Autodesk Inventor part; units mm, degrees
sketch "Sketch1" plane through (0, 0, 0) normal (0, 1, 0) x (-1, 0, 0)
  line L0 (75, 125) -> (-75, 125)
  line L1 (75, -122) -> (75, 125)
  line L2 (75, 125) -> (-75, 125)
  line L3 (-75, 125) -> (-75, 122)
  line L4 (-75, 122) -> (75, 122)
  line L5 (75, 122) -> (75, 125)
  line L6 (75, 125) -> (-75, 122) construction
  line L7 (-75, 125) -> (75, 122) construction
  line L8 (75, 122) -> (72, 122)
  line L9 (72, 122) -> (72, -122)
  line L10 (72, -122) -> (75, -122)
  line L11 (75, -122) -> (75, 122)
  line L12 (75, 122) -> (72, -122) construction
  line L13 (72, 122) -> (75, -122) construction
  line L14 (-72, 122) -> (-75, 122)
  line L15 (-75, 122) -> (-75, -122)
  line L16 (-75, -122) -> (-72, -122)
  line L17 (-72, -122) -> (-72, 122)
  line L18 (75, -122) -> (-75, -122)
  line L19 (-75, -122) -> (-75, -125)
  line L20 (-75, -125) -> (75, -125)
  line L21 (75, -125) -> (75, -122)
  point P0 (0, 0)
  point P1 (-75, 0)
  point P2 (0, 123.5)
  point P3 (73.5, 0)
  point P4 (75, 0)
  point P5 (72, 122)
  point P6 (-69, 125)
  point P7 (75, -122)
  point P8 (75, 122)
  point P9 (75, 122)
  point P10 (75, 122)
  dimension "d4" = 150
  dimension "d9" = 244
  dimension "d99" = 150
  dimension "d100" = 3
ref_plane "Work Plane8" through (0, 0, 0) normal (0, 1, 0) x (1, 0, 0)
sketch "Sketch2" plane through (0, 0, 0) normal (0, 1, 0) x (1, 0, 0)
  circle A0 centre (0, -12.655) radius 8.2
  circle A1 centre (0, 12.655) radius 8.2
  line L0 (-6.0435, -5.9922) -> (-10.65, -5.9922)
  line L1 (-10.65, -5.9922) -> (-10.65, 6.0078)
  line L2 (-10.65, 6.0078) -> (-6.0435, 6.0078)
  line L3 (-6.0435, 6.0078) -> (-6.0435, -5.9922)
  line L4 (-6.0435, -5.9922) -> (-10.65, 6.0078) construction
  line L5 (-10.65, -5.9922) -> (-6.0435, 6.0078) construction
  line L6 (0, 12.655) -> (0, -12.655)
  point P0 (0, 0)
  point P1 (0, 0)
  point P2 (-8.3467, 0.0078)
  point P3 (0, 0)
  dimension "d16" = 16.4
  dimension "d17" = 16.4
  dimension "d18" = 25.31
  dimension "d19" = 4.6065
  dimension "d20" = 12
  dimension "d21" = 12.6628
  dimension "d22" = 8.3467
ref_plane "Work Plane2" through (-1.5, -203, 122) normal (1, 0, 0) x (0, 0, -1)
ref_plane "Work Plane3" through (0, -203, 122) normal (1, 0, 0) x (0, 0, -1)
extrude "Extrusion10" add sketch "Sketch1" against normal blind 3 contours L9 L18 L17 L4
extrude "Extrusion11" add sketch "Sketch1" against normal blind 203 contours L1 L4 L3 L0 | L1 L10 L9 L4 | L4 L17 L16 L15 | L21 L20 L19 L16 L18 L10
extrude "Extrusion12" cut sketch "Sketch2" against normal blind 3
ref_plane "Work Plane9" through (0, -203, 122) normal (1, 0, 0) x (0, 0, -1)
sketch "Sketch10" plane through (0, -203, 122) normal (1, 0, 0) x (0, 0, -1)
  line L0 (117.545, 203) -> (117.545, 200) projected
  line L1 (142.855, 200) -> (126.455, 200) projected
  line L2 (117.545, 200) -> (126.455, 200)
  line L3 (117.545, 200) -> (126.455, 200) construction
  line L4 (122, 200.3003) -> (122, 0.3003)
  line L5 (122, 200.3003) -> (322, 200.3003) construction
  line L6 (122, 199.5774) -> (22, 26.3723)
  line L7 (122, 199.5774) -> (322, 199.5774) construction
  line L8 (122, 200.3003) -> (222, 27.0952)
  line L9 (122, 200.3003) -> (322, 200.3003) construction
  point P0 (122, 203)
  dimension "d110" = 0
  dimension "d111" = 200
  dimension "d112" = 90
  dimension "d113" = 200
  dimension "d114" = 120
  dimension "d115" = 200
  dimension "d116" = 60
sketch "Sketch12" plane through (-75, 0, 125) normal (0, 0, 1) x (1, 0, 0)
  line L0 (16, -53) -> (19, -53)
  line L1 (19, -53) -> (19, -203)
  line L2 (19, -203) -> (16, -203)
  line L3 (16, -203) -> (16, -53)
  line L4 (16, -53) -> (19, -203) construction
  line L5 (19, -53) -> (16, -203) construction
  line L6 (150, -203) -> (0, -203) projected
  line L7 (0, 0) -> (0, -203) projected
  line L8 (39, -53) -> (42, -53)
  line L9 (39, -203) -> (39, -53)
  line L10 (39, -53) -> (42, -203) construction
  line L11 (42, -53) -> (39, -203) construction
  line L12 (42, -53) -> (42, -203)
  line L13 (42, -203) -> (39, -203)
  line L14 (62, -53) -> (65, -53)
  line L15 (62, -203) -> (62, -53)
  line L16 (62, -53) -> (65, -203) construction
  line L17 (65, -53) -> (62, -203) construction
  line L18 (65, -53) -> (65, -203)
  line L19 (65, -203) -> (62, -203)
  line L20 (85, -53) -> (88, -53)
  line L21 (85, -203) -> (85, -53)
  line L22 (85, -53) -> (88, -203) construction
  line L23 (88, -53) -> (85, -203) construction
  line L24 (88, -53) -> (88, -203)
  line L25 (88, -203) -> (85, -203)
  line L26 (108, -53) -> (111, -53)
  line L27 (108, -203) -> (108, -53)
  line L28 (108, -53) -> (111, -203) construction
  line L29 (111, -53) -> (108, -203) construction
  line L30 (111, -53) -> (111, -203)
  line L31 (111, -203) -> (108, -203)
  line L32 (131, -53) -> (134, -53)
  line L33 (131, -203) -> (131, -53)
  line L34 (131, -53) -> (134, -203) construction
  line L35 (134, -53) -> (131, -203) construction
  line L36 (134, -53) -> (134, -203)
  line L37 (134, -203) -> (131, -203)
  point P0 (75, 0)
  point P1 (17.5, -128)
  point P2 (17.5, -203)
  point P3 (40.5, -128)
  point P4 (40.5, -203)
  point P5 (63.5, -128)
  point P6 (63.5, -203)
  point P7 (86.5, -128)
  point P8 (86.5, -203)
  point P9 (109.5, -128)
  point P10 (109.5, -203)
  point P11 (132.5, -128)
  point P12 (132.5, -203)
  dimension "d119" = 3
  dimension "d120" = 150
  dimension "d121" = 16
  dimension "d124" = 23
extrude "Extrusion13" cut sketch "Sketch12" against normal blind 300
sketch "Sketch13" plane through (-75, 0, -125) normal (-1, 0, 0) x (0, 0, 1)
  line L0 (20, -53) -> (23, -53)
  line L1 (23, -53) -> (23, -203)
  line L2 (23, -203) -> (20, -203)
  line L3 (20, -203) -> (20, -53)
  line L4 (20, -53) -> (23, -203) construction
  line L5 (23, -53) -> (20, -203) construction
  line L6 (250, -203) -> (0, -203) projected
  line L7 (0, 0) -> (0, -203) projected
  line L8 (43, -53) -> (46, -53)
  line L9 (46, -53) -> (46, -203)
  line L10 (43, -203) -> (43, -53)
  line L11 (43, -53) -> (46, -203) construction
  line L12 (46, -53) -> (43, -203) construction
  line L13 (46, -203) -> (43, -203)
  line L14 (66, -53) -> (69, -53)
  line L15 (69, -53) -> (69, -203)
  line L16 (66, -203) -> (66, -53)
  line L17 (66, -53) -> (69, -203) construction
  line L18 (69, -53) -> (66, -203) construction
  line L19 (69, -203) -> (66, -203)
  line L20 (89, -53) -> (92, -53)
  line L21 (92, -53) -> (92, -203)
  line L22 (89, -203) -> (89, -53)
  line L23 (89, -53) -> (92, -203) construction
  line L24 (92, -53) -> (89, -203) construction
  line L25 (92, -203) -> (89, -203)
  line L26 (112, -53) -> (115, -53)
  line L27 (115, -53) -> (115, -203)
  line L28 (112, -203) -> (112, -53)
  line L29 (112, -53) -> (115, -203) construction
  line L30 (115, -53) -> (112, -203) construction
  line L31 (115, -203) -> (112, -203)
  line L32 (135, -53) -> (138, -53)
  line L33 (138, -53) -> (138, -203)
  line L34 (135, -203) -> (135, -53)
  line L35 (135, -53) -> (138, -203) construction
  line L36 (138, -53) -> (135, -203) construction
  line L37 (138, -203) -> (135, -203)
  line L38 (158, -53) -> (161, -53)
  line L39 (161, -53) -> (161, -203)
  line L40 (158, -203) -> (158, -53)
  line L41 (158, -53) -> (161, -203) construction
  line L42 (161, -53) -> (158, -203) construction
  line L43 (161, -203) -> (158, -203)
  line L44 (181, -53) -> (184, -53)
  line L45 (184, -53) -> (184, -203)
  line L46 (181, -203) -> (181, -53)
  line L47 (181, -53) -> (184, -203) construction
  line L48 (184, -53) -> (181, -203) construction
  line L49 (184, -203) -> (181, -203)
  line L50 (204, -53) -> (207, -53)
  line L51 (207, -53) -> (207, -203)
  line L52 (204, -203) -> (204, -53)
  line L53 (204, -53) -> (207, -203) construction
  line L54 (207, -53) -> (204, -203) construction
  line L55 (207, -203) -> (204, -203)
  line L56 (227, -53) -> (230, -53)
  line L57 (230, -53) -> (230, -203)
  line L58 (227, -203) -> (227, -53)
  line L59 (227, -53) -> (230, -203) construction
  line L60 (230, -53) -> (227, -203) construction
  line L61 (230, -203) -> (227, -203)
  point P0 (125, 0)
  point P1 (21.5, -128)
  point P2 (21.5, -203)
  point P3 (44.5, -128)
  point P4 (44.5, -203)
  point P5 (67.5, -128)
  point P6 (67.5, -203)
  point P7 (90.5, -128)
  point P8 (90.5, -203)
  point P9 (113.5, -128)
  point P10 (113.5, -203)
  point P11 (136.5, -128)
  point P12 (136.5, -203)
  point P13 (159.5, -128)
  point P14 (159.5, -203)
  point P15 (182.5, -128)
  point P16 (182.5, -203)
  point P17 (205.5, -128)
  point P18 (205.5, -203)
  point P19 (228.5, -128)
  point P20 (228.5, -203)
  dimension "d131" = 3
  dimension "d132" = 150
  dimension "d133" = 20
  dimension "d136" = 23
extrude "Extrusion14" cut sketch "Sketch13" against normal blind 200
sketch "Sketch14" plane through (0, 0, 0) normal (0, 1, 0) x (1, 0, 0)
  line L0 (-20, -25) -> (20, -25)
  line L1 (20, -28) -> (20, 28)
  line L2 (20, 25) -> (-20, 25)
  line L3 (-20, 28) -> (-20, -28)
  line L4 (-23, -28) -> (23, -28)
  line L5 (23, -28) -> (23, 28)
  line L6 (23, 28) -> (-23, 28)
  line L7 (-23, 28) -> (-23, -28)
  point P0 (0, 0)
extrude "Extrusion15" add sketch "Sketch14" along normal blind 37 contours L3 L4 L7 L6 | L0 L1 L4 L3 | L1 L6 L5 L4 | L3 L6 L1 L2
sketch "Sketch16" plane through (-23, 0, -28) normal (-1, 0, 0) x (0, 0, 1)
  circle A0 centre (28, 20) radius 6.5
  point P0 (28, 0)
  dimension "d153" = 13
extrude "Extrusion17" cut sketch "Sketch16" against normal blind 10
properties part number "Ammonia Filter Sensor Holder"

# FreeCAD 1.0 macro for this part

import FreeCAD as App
import Part
import Sketcher
from FreeCAD import Vector
Q = App.Units.Quantity

doc = App.newDocument("Part")
params = doc.addObject("Spreadsheet::Sheet", "Params")
for row, (alias, value) in enumerate([
    ("sketch1_height", "244 mm"),
    ("sketch1_width", "144 mm"),
    ("pad1_length", "3 mm"),
    ("sketch2_width", "150 mm"),
    ("sketch2_height", "244 mm"),
    ("pad2_length", "203 mm"),
    ("sketch3_diameter", "16.4 mm"),
    ("sketch3_height", "12 mm"),
    ("pocket1_length", "3 mm"),
    ("sketch4_width", "3 mm"),
    ("sketch4_height", "150 mm"),
    ("pocket2_length", "300 mm"),
    ("sketch5_width", "150 mm"),
    ("sketch5_height", "3 mm"),
    ("pocket3_length", "200 mm"),
    ("sketch6_width", "46 mm"),
    ("sketch6_width2", "40 mm"),
    ("sketch6_height", "56 mm"),
    ("sketch6_height2", "50 mm"),
    ("pad3_length", "37 mm"),
    ("sketch7_diameter", "13 mm"),
    ("pocket4_length", "10 mm"),
], start=1):
    params.set(f"A{row}", alias)
    params.set(f"B{row}", "=" + value)
    params.setAlias(f"B{row}", alias)

body = doc.addObject("PartDesign::Body", "Body")

sketch1 = body.newObject("Sketcher::SketchObject", "Sketch")
sketch1.AttachmentSupport = (doc.getObject("XZ_Plane"), [""])
sketch1.MapMode = "FlatFace"
sketch1.addGeometry(Part.LineSegment(Vector(-72, -122, 0), Vector(-72, 122, 0)), False)
sketch1.addGeometry(Part.LineSegment(Vector(-72, 122, 0), Vector(72, 122, 0)), False)
sketch1.addGeometry(Part.LineSegment(Vector(72, 122, 0), Vector(72, -122, 0)), False)
sketch1.addGeometry(Part.LineSegment(Vector(72, -122, 0), Vector(-72, -122, 0)), False)
sketch1.addConstraint(Sketcher.Constraint("Coincident", 0, 2, 1, 1))
sketch1.addConstraint(Sketcher.Constraint("Coincident", 1, 2, 2, 1))
sketch1.addConstraint(Sketcher.Constraint("Coincident", 2, 2, 3, 1))
sketch1.addConstraint(Sketcher.Constraint("Coincident", 3, 2, 0, 1))
sketch1.addConstraint(Sketcher.Constraint("Vertical", 0))
sketch1.addConstraint(Sketcher.Constraint("Horizontal", 1))
sketch1.addConstraint(Sketcher.Constraint("Vertical", 2))
sketch1.addConstraint(Sketcher.Constraint("Horizontal", 3))
sketch1.addConstraint(Sketcher.Constraint("Symmetric", 0, 2, 2, 2, -1, 1))
sketch1.addConstraint(Sketcher.Constraint("DistanceY", 0, 1, 0, 2, Q("244 mm")))
sketch1.addConstraint(Sketcher.Constraint("DistanceX", 1, 1, 1, 2, Q("144 mm")))
sketch1.setExpression("Constraints[9]", "Params.sketch1_height")
sketch1.setExpression("Constraints[10]", "Params.sketch1_width")
pad1 = body.newObject("PartDesign::Pad", "Pad")
pad1.Profile = sketch1
pad1.setExpression("Length", "Params.pad1_length")

sketch2 = body.newObject("Sketcher::SketchObject", "Sketch001")
sketch2.AttachmentSupport = (doc.getObject("XZ_Plane"), [""])
sketch2.MapMode = "FlatFace"
sketch2.addGeometry(Part.LineSegment(Vector(-75, 125, 0), Vector(75, 125, 0)), False)
sketch2.addGeometry(Part.LineSegment(Vector(75, 125, 0), Vector(75, -125, 0)), False)
sketch2.addGeometry(Part.LineSegment(Vector(75, -125, 0), Vector(-75, -125, 0)), False)
sketch2.addGeometry(Part.LineSegment(Vector(-75, -125, 0), Vector(-75, 125, 0)), False)
sketch2.addGeometry(Part.LineSegment(Vector(72, 122, 0), Vector(-72, 122, 0)), False)
sketch2.addGeometry(Part.LineSegment(Vector(-72, 122, 0), Vector(-72, -122, 0)), False)
sketch2.addGeometry(Part.LineSegment(Vector(-72, -122, 0), Vector(72, -122, 0)), False)
sketch2.addGeometry(Part.LineSegment(Vector(72, -122, 0), Vector(72, 122, 0)), False)
sketch2.addConstraint(Sketcher.Constraint("Coincident", 0, 2, 1, 1))
sketch2.addConstraint(Sketcher.Constraint("Coincident", 1, 2, 2, 1))
sketch2.addConstraint(Sketcher.Constraint("Coincident", 2, 2, 3, 1))
sketch2.addConstraint(Sketcher.Constraint("Coincident", 3, 2, 0, 1))
sketch2.addConstraint(Sketcher.Constraint("Coincident", 4, 2, 5, 1))
sketch2.addConstraint(Sketcher.Constraint("Coincident", 5, 2, 6, 1))
sketch2.addConstraint(Sketcher.Constraint("Coincident", 6, 2, 7, 1))
sketch2.addConstraint(Sketcher.Constraint("Coincident", 7, 2, 4, 1))
sketch2.addConstraint(Sketcher.Constraint("Horizontal", 0))
sketch2.addConstraint(Sketcher.Constraint("Vertical", 1))
sketch2.addConstraint(Sketcher.Constraint("Horizontal", 2))
sketch2.addConstraint(Sketcher.Constraint("Vertical", 3))
sketch2.addConstraint(Sketcher.Constraint("Horizontal", 4))
sketch2.addConstraint(Sketcher.Constraint("Vertical", 5))
sketch2.addConstraint(Sketcher.Constraint("Horizontal", 6))
sketch2.addConstraint(Sketcher.Constraint("Vertical", 7))
sketch2.addConstraint(Sketcher.Constraint("Symmetric", 0, 2, 2, 2, -1, 1))
sketch2.addConstraint(Sketcher.Constraint("Symmetric", 4, 2, 6, 2, -1, 1))
sketch2.addConstraint(Sketcher.Constraint("DistanceX", 0, 1, 0, 2, Q("150 mm")))
sketch2.addConstraint(Sketcher.Constraint("DistanceY", 5, 2, 5, 1, Q("244 mm")))
sketch2.addConstraint(Sketcher.Constraint("DistanceX", 3, 2, 4, 2, Q("3 mm")))
sketch2.addConstraint(Sketcher.Constraint("DistanceY", 4, 2, 3, 2, Q("3 mm")))
sketch2.setExpression("Constraints[18]", "Params.sketch2_width")
sketch2.setExpression("Constraints[19]", "Params.sketch2_height")
pad2 = body.newObject("PartDesign::Pad", "Pad001")
pad2.Profile = sketch2
pad2.setExpression("Length", "Params.pad2_length")

sketch3 = body.newObject("Sketcher::SketchObject", "Sketch002")
sketch3.AttachmentSupport = (doc.getObject("XZ_Plane"), [""])
sketch3.MapMode = "FlatFace"
sketch3.addGeometry(Part.Circle(Vector(0, 12.7, 0), Vector(0, 0, 1), 8.2), False)
sketch3.addGeometry(Part.Circle(Vector(0, -12.7, 0), Vector(0, 0, 1), 8.2), False)
sketch3.addGeometry(Part.LineSegment(Vector(-10.7, 6, 0), Vector(-6, 6, 0)), False)
sketch3.addGeometry(Part.LineSegment(Vector(-6, 6, 0), Vector(-6, -6, 0)), False)
sketch3.addGeometry(Part.LineSegment(Vector(-6, -6, 0), Vector(-10.7, -6, 0)), False)
sketch3.addGeometry(Part.LineSegment(Vector(-10.7, -6, 0), Vector(-10.7, 6, 0)), False)
sketch3.addConstraint(Sketcher.Constraint("Coincident", 2, 2, 3, 1))
sketch3.addConstraint(Sketcher.Constraint("Coincident", 3, 2, 4, 1))
sketch3.addConstraint(Sketcher.Constraint("Coincident", 4, 2, 5, 1))
sketch3.addConstraint(Sketcher.Constraint("Coincident", 5, 2, 2, 1))
sketch3.addConstraint(Sketcher.Constraint("Horizontal", 2))
sketch3.addConstraint(Sketcher.Constraint("Vertical", 3))
sketch3.addConstraint(Sketcher.Constraint("Horizontal", 4))
sketch3.addConstraint(Sketcher.Constraint("Vertical", 5))
sketch3.addConstraint(Sketcher.Constraint("Equal", 0, 1))
sketch3.addConstraint(Sketcher.Constraint("Symmetric", 0, 3, 1, 3, -1, 1))
sketch3.addConstraint(Sketcher.Constraint("PointOnObject", 0, 3, -2))
sketch3.addConstraint(Sketcher.Constraint("Diameter", 0, Q("16.4 mm")))
sketch3.addConstraint(Sketcher.Constraint("DistanceY", 3, 2, 3, 1, Q("12 mm")))
sketch3.addConstraint(Sketcher.Constraint("DistanceY", 1, 3, 0, 3, Q("25.31 mm")))
sketch3.addConstraint(Sketcher.Constraint("DistanceX", 2, 1, 2, 2, Q("4.6065 mm")))
sketch3.addConstraint(Sketcher.Constraint("DistanceX", 4, 2, -1, 1, Q("10.65 mm")))
sketch3.addConstraint(Sketcher.Constraint("DistanceY", -1, 1, 2, 2, Q("5.9922 mm")))
sketch3.setExpression("Constraints[11]", "Params.sketch3_diameter")
sketch3.setExpression("Constraints[12]", "Params.sketch3_height")
pocket1 = body.newObject("PartDesign::Pocket", "Pocket")
pocket1.Profile = sketch3
pocket1.setExpression("Length", "Params.pocket1_length")
pocket1.Reversed = True

sketch4 = body.newObject("Sketcher::SketchObject", "Sketch003")
sketch4.AttachmentSupport = (doc.getObject("XY_Plane"), [""])
sketch4.MapMode = "FlatFace"
sketch4.AttachmentOffset = App.Placement(Vector(0, 0, 125), App.Rotation())
sketch4.addGeometry(Part.LineSegment(Vector(56, -53, 0), Vector(56, -203, 0)), False)
sketch4.addGeometry(Part.LineSegment(Vector(56, -203, 0), Vector(59, -203, 0)), False)
sketch4.addGeometry(Part.LineSegment(Vector(59, -203, 0), Vector(59, -53, 0)), False)
sketch4.addGeometry(Part.LineSegment(Vector(59, -53, 0), Vector(56, -53, 0)), False)
sketch4.addGeometry(Part.LineSegment(Vector(33, -53, 0), Vector(33, -203, 0)), False)
sketch4.addGeometry(Part.LineSegment(Vector(33, -203, 0), Vector(36, -203, 0)), False)
sketch4.addGeometry(Part.LineSegment(Vector(36, -203, 0), Vector(36, -53, 0)), False)
sketch4.addGeometry(Part.LineSegment(Vector(36, -53, 0), Vector(33, -53, 0)), False)
sketch4.addGeometry(Part.LineSegment(Vector(10, -53, 0), Vector(10, -203, 0)), False)
sketch4.addGeometry(Part.LineSegment(Vector(10, -203, 0), Vector(13, -203, 0)), False)
sketch4.addGeometry(Part.LineSegment(Vector(13, -203, 0), Vector(13, -53, 0)), False)
sketch4.addGeometry(Part.LineSegment(Vector(13, -53, 0), Vector(10, -53, 0)), False)
sketch4.addGeometry(Part.LineSegment(Vector(-13, -53, 0), Vector(-13, -203, 0)), False)
sketch4.addGeometry(Part.LineSegment(Vector(-13, -203, 0), Vector(-10, -203, 0)), False)
sketch4.addGeometry(Part.LineSegment(Vector(-10, -203, 0), Vector(-10, -53, 0)), False)
sketch4.addGeometry(Part.LineSegment(Vector(-10, -53, 0), Vector(-13, -53, 0)), False)
sketch4.addGeometry(Part.LineSegment(Vector(-36, -53, 0), Vector(-36, -203, 0)), False)
sketch4.addGeometry(Part.LineSegment(Vector(-36, -203, 0), Vector(-33, -203, 0)), False)
sketch4.addGeometry(Part.LineSegment(Vector(-33, -203, 0), Vector(-33, -53, 0)), False)
sketch4.addGeometry(Part.LineSegment(Vector(-33, -53, 0), Vector(-36, -53, 0)), False)
sketch4.addGeometry(Part.LineSegment(Vector(-56, -53, 0), Vector(-59, -53, 0)), False)
sketch4.addGeometry(Part.LineSegment(Vector(-59, -53, 0), Vector(-59, -203, 0)), False)
sketch4.addGeometry(Part.LineSegment(Vector(-59, -203, 0), Vector(-56, -203, 0)), False)
sketch4.addGeometry(Part.LineSegment(Vector(-56, -203, 0), Vector(-56, -53, 0)), False)
sketch4.addConstraint(Sketcher.Constraint("Coincident", 0, 2, 1, 1))
sketch4.addConstraint(Sketcher.Constraint("Coincident", 1, 2, 2, 1))
sketch4.addConstraint(Sketcher.Constraint("Coincident", 2, 2, 3, 1))
sketch4.addConstraint(Sketcher.Constraint("Coincident", 3, 2, 0, 1))
sketch4.addConstraint(Sketcher.Constraint("Coincident", 4, 2, 5, 1))
sketch4.addConstraint(Sketcher.Constraint("Coincident", 5, 2, 6, 1))
sketch4.addConstraint(Sketcher.Constraint("Coincident", 6, 2, 7, 1))
sketch4.addConstraint(Sketcher.Constraint("Coincident", 7, 2, 4, 1))
sketch4.addConstraint(Sketcher.Constraint("Coincident", 8, 2, 9, 1))
sketch4.addConstraint(Sketcher.Constraint("Coincident", 9, 2, 10, 1))
sketch4.addConstraint(Sketcher.Constraint("Coincident", 10, 2, 11, 1))
sketch4.addConstraint(Sketcher.Constraint("Coincident", 11, 2, 8, 1))
sketch4.addConstraint(Sketcher.Constraint("Coincident", 12, 2, 13, 1))
sketch4.addConstraint(Sketcher.Constraint("Coincident", 13, 2, 14, 1))
sketch4.addConstraint(Sketcher.Constraint("Coincident", 14, 2, 15, 1))
sketch4.addConstraint(Sketcher.Constraint("Coincident", 15, 2, 12, 1))
sketch4.addConstraint(Sketcher.Constraint("Coincident", 16, 2, 17, 1))
sketch4.addConstraint(Sketcher.Constraint("Coincident", 17, 2, 18, 1))
sketch4.addConstraint(Sketcher.Constraint("Coincident", 18, 2, 19, 1))
sketch4.addConstraint(Sketcher.Constraint("Coincident", 19, 2, 16, 1))
sketch4.addConstraint(Sketcher.Constraint("Coincident", 20, 2, 21, 1))
sketch4.addConstraint(Sketcher.Constraint("Coincident", 21, 2, 22, 1))
sketch4.addConstraint(Sketcher.Constraint("Coincident", 22, 2, 23, 1))
sketch4.addConstraint(Sketcher.Constraint("Coincident", 23, 2, 20, 1))
sketch4.addConstraint(Sketcher.Constraint("Vertical", 0))
sketch4.addConstraint(Sketcher.Constraint("Horizontal", 1))
sketch4.addConstraint(Sketcher.Constraint("Vertical", 2))
sketch4.addConstraint(Sketcher.Constraint("Horizontal", 3))
sketch4.addConstraint(Sketcher.Constraint("Vertical", 4))
sketch4.addConstraint(Sketcher.Constraint("Horizontal", 5))
sketch4.addConstraint(Sketcher.Constraint("Vertical", 6))
sketch4.addConstraint(Sketcher.Constraint("Horizontal", 7))
sketch4.addConstraint(Sketcher.Constraint("Vertical", 8))
sketch4.addConstraint(Sketcher.Constraint("Horizontal", 9))
sketch4.addConstraint(Sketcher.Constraint("Vertical", 10))
sketch4.addConstraint(Sketcher.Constraint("Horizontal", 11))
sketch4.addConstraint(Sketcher.Constraint("Vertical", 12))
sketch4.addConstraint(Sketcher.Constraint("Horizontal", 13))
sketch4.addConstraint(Sketcher.Constraint("Vertical", 14))
sketch4.addConstraint(Sketcher.Constraint("Horizontal", 15))
sketch4.addConstraint(Sketcher.Constraint("Vertical", 16))
sketch4.addConstraint(Sketcher.Constraint("Horizontal", 17))
sketch4.addConstraint(Sketcher.Constraint("Vertical", 18))
sketch4.addConstraint(Sketcher.Constraint("Horizontal", 19))
sketch4.addConstraint(Sketcher.Constraint("Horizontal", 20))
sketch4.addConstraint(Sketcher.Constraint("Vertical", 21))
sketch4.addConstraint(Sketcher.Constraint("Horizontal", 22))
sketch4.addConstraint(Sketcher.Constraint("Vertical", 23))
sketch4.addConstraint(Sketcher.Constraint("Symmetric", 9, 2, 12, 2, -2))
sketch4.addConstraint(Sketcher.Constraint("Symmetric", 11, 2, 14, 2, -2))
sketch4.addConstraint(Sketcher.Constraint("Symmetric", 5, 2, 16, 2, -2))
sketch4.addConstraint(Sketcher.Constraint("Symmetric", 7, 2, 18, 2, -2))
sketch4.addConstraint(Sketcher.Constraint("Symmetric", 2, 2, 20, 2, -2))
sketch4.addConstraint(Sketcher.Constraint("Symmetric", 0, 2, 22, 2, -2))
sketch4.addConstraint(Sketcher.Constraint("Horizontal", 1, 2, 4, 2))
sketch4.addConstraint(Sketcher.Constraint("Horizontal", 3, 2, 6, 2))
sketch4.addConstraint(Sketcher.Constraint("Horizontal", 5, 2, 8, 2))
sketch4.addConstraint(Sketcher.Constraint("Horizontal", 7, 2, 10, 2))
sketch4.addConstraint(Sketcher.Constraint("Equal", 3, 5))
sketch4.addConstraint(Sketcher.Constraint("Equal", 7, 9))
sketch4.addConstraint(Sketcher.Constraint("DistanceX", 1, 1, 1, 2, Q("3 mm")))
sketch4.addConstraint(Sketcher.Constraint("DistanceY", 0, 2, 0, 1, Q("150 mm")))
sketch4.addConstraint(Sketcher.Constraint("DistanceX", -1, 1, 8, 2, Q("10 mm")))
sketch4.addConstraint(Sketcher.Constraint("DistanceX", 4, 2, 0, 2, Q("23 mm")))
sketch4.addConstraint(Sketcher.Constraint("DistanceX", 8, 2, 4, 2, Q("23 mm")))
sketch4.addConstraint(Sketcher.Constraint("DistanceY", 0, 2, -1, 1, Q("203 mm")))
sketch4.setExpression("Constraints[60]", "Params.sketch4_width")
sketch4.setExpression("Constraints[61]", "Params.sketch4_height")
pocket2 = body.newObject("PartDesign::Pocket", "Pocket001")
pocket2.Profile = sketch4
pocket2.setExpression("Length", "Params.pocket2_length")

sketch5 = body.newObject("Sketcher::SketchObject", "Sketch004")
sketch5.AttachmentSupport = (doc.getObject("YZ_Plane"), [""])
sketch5.MapMode = "FlatFace"
sketch5.AttachmentOffset = App.Placement(Vector(0, 0, -75), App.Rotation())
sketch5.addGeometry(Part.LineSegment(Vector(-53, 102, 0), Vector(-203, 102, 0)), False)
sketch5.addGeometry(Part.LineSegment(Vector(-203, 102, 0), Vector(-203, 105, 0)), False)
sketch5.addGeometry(Part.LineSegment(Vector(-203, 105, 0), Vector(-53, 105, 0)), False)
sketch5.addGeometry(Part.LineSegment(Vector(-53, 105, 0), Vector(-53, 102, 0)), False)
sketch5.addGeometry(Part.LineSegment(Vector(-53, 79, 0), Vector(-203, 79, 0)), False)
sketch5.addGeometry(Part.LineSegment(Vector(-203, 79, 0), Vector(-203, 82, 0)), False)
sketch5.addGeometry(Part.LineSegment(Vector(-203, 82, 0), Vector(-53, 82, 0)), False)
sketch5.addGeometry(Part.LineSegment(Vector(-53, 82, 0), Vector(-53, 79, 0)), False)
sketch5.addGeometry(Part.LineSegment(Vector(-53, 56, 0), Vector(-203, 56, 0)), False)
sketch5.addGeometry(Part.LineSegment(Vector(-203, 56, 0), Vector(-203, 59, 0)), False)
sketch5.addGeometry(Part.LineSegment(Vector(-203, 59, 0), Vector(-53, 59, 0)), False)
sketch5.addGeometry(Part.LineSegment(Vector(-53, 59, 0), Vector(-53, 56, 0)), False)
sketch5.addGeometry(Part.LineSegment(Vector(-53, 33, 0), Vector(-203, 33, 0)), False)
sketch5.addGeometry(Part.LineSegment(Vector(-203, 33, 0), Vector(-203, 36, 0)), False)
sketch5.addGeometry(Part.LineSegment(Vector(-203, 36, 0), Vector(-53, 36, 0)), False)
sketch5.addGeometry(Part.LineSegment(Vector(-53, 36, 0), Vector(-53, 33, 0)), False)
sketch5.addGeometry(Part.LineSegment(Vector(-53, 10, 0), Vector(-203, 10, 0)), False)
sketch5.addGeometry(Part.LineSegment(Vector(-203, 10, 0), Vector(-203, 13, 0)), False)
sketch5.addGeometry(Part.LineSegment(Vector(-203, 13, 0), Vector(-53, 13, 0)), False)
sketch5.addGeometry(Part.LineSegment(Vector(-53, 13, 0), Vector(-53, 10, 0)), False)
sketch5.addGeometry(Part.LineSegment(Vector(-53, -13, 0), Vector(-203, -13, 0)), False)
sketch5.addGeometry(Part.LineSegment(Vector(-203, -13, 0), Vector(-203, -10, 0)), False)
sketch5.addGeometry(Part.LineSegment(Vector(-203, -10, 0), Vector(-53, -10, 0)), False)
sketch5.addGeometry(Part.LineSegment(Vector(-53, -10, 0), Vector(-53, -13, 0)), False)
sketch5.addGeometry(Part.LineSegment(Vector(-53, -36, 0), Vector(-203, -36, 0)), False)
sketch5.addGeometry(Part.LineSegment(Vector(-203, -36, 0), Vector(-203, -33, 0)), False)
sketch5.addGeometry(Part.LineSegment(Vector(-203, -33, 0), Vector(-53, -33, 0)), False)
sketch5.addGeometry(Part.LineSegment(Vector(-53, -33, 0), Vector(-53, -36, 0)), False)
sketch5.addGeometry(Part.LineSegment(Vector(-53, -59, 0), Vector(-203, -59, 0)), False)
sketch5.addGeometry(Part.LineSegment(Vector(-203, -59, 0), Vector(-203, -56, 0)), False)
sketch5.addGeometry(Part.LineSegment(Vector(-203, -56, 0), Vector(-53, -56, 0)), False)
sketch5.addGeometry(Part.LineSegment(Vector(-53, -56, 0), Vector(-53, -59, 0)), False)
sketch5.addGeometry(Part.LineSegment(Vector(-53, -82, 0), Vector(-203, -82, 0)), False)
sketch5.addGeometry(Part.LineSegment(Vector(-203, -82, 0), Vector(-203, -79, 0)), False)
sketch5.addGeometry(Part.LineSegment(Vector(-203, -79, 0), Vector(-53, -79, 0)), False)
sketch5.addGeometry(Part.LineSegment(Vector(-53, -79, 0), Vector(-53, -82, 0)), False)
sketch5.addGeometry(Part.LineSegment(Vector(-53, -102, 0), Vector(-53, -105, 0)), False)
sketch5.addGeometry(Part.LineSegment(Vector(-53, -105, 0), Vector(-203, -105, 0)), False)
sketch5.addGeometry(Part.LineSegment(Vector(-203, -105, 0), Vector(-203, -102, 0)), False)
sketch5.addGeometry(Part.LineSegment(Vector(-203, -102, 0), Vector(-53, -102, 0)), False)
sketch5.addConstraint(Sketcher.Constraint("Coincident", 0, 2, 1, 1))
sketch5.addConstraint(Sketcher.Constraint("Coincident", 1, 2, 2, 1))
sketch5.addConstraint(Sketcher.Constraint("Coincident", 2, 2, 3, 1))
sketch5.addConstraint(Sketcher.Constraint("Coincident", 3, 2, 0, 1))
sketch5.addConstraint(Sketcher.Constraint("Coincident", 4, 2, 5, 1))
sketch5.addConstraint(Sketcher.Constraint("Coincident", 5, 2, 6, 1))
sketch5.addConstraint(Sketcher.Constraint("Coincident", 6, 2, 7, 1))
sketch5.addConstraint(Sketcher.Constraint("Coincident", 7, 2, 4, 1))
sketch5.addConstraint(Sketcher.Constraint("Coincident", 8, 2, 9, 1))
sketch5.addConstraint(Sketcher.Constraint("Coincident", 9, 2, 10, 1))
sketch5.addConstraint(Sketcher.Constraint("Coincident", 10, 2, 11, 1))
sketch5.addConstraint(Sketcher.Constraint("Coincident", 11, 2, 8, 1))
sketch5.addConstraint(Sketcher.Constraint("Coincident", 12, 2, 13, 1))
sketch5.addConstraint(Sketcher.Constraint("Coincident", 13, 2, 14, 1))
sketch5.addConstraint(Sketcher.Constraint("Coincident", 14, 2, 15, 1))
sketch5.addConstraint(Sketcher.Constraint("Coincident", 15, 2, 12, 1))
sketch5.addConstraint(Sketcher.Constraint("Coincident", 16, 2, 17, 1))
sketch5.addConstraint(Sketcher.Constraint("Coincident", 17, 2, 18, 1))
sketch5.addConstraint(Sketcher.Constraint("Coincident", 18, 2, 19, 1))
sketch5.addConstraint(Sketcher.Constraint("Coincident", 19, 2, 16, 1))
sketch5.addConstraint(Sketcher.Constraint("Coincident", 20, 2, 21, 1))
sketch5.addConstraint(Sketcher.Constraint("Coincident", 21, 2, 22, 1))
sketch5.addConstraint(Sketcher.Constraint("Coincident", 22, 2, 23, 1))
sketch5.addConstraint(Sketcher.Constraint("Coincident", 23, 2, 20, 1))
sketch5.addConstraint(Sketcher.Constraint("Coincident", 24, 2, 25, 1))
sketch5.addConstraint(Sketcher.Constraint("Coincident", 25, 2, 26, 1))
sketch5.addConstraint(Sketcher.Constraint("Coincident", 26, 2, 27, 1))
sketch5.addConstraint(Sketcher.Constraint("Coincident", 27, 2, 24, 1))
sketch5.addConstraint(Sketcher.Constraint("Coincident", 28, 2, 29, 1))
sketch5.addConstraint(Sketcher.Constraint("Coincident", 29, 2, 30, 1))
sketch5.addConstraint(Sketcher.Constraint("Coincident", 30, 2, 31, 1))
sketch5.addConstraint(Sketcher.Constraint("Coincident", 31, 2, 28, 1))
sketch5.addConstraint(Sketcher.Constraint("Coincident", 32, 2, 33, 1))
sketch5.addConstraint(Sketcher.Constraint("Coincident", 33, 2, 34, 1))
sketch5.addConstraint(Sketcher.Constraint("Coincident", 34, 2, 35, 1))
sketch5.addConstraint(Sketcher.Constraint("Coincident", 35, 2, 32, 1))
sketch5.addConstraint(Sketcher.Constraint("Coincident", 36, 2, 37, 1))
sketch5.addConstraint(Sketcher.Constraint("Coincident", 37, 2, 38, 1))
sketch5.addConstraint(Sketcher.Constraint("Coincident", 38, 2, 39, 1))
sketch5.addConstraint(Sketcher.Constraint("Coincident", 39, 2, 36, 1))
sketch5.addConstraint(Sketcher.Constraint("Horizontal", 0))
sketch5.addConstraint(Sketcher.Constraint("Vertical", 1))
sketch5.addConstraint(Sketcher.Constraint("Horizontal", 2))
sketch5.addConstraint(Sketcher.Constraint("Vertical", 3))
sketch5.addConstraint(Sketcher.Constraint("Horizontal", 4))
sketch5.addConstraint(Sketcher.Constraint("Vertical", 5))
sketch5.addConstraint(Sketcher.Constraint("Horizontal", 6))
sketch5.addConstraint(Sketcher.Constraint("Vertical", 7))
sketch5.addConstraint(Sketcher.Constraint("Horizontal", 8))
sketch5.addConstraint(Sketcher.Constraint("Vertical", 9))
sketch5.addConstraint(Sketcher.Constraint("Horizontal", 10))
sketch5.addConstraint(Sketcher.Constraint("Vertical", 11))
sketch5.addConstraint(Sketcher.Constraint("Horizontal", 12))
sketch5.addConstraint(Sketcher.Constraint("Vertical", 13))
sketch5.addConstraint(Sketcher.Constraint("Horizontal", 14))
sketch5.addConstraint(Sketcher.Constraint("Vertical", 15))
sketch5.addConstraint(Sketcher.Constraint("Horizontal", 16))
sketch5.addConstraint(Sketcher.Constraint("Vertical", 17))
sketch5.addConstraint(Sketcher.Constraint("Horizontal", 18))
sketch5.addConstraint(Sketcher.Constraint("Vertical", 19))
sketch5.addConstraint(Sketcher.Constraint("Horizontal", 20))
sketch5.addConstraint(Sketcher.Constraint("Vertical", 21))
sketch5.addConstraint(Sketcher.Constraint("Horizontal", 22))
sketch5.addConstraint(Sketcher.Constraint("Vertical", 23))
sketch5.addConstraint(Sketcher.Constraint("Horizontal", 24))
sketch5.addConstraint(Sketcher.Constraint("Vertical", 25))
sketch5.addConstraint(Sketcher.Constraint("Horizontal", 26))
sketch5.addConstraint(Sketcher.Constraint("Vertical", 27))
sketch5.addConstraint(Sketcher.Constraint("Horizontal", 28))
sketch5.addConstraint(Sketcher.Constraint("Vertical", 29))
sketch5.addConstraint(Sketcher.Constraint("Horizontal", 30))
sketch5.addConstraint(Sketcher.Constraint("Vertical", 31))
sketch5.addConstraint(Sketcher.Constraint("Horizontal", 32))
sketch5.addConstraint(Sketcher.Constraint("Vertical", 33))
sketch5.addConstraint(Sketcher.Constraint("Horizontal", 34))
sketch5.addConstraint(Sketcher.Constraint("Vertical", 35))
sketch5.addConstraint(Sketcher.Constraint("Vertical", 36))
sketch5.addConstraint(Sketcher.Constraint("Horizontal", 37))
sketch5.addConstraint(Sketcher.Constraint("Vertical", 38))
sketch5.addConstraint(Sketcher.Constraint("Horizontal", 39))
sketch5.addConstraint(Sketcher.Constraint("Symmetric", 17, 2, 20, 2, -1))
sketch5.addConstraint(Sketcher.Constraint("Symmetric", 19, 2, 22, 2, -1))
sketch5.addConstraint(Sketcher.Constraint("Symmetric", 13, 2, 24, 2, -1))
sketch5.addConstraint(Sketcher.Constraint("Symmetric", 15, 2, 26, 2, -1))
sketch5.addConstraint(Sketcher.Constraint("Symmetric", 9, 2, 28, 2, -1))
sketch5.addConstraint(Sketcher.Constraint("Symmetric", 11, 2, 30, 2, -1))
sketch5.addConstraint(Sketcher.Constraint("Symmetric", 5, 2, 32, 2, -1))
sketch5.addConstraint(Sketcher.Constraint("Symmetric", 7, 2, 34, 2, -1))
sketch5.addConstraint(Sketcher.Constraint("Symmetric", 2, 2, 36, 2, -1))
sketch5.addConstraint(Sketcher.Constraint("Symmetric", 0, 2, 38, 2, -1))
sketch5.addConstraint(Sketcher.Constraint("Vertical", 1, 2, 4, 2))
sketch5.addConstraint(Sketcher.Constraint("Vertical", 3, 2, 6, 2))
sketch5.addConstraint(Sketcher.Constraint("Vertical", 5, 2, 8, 2))
sketch5.addConstraint(Sketcher.Constraint("Vertical", 7, 2, 10, 2))
sketch5.addConstraint(Sketcher.Constraint("Vertical", 9, 2, 12, 2))
sketch5.addConstraint(Sketcher.Constraint("Vertical", 11, 2, 14, 2))
sketch5.addConstraint(Sketcher.Constraint("Vertical", 13, 2, 16, 2))
sketch5.addConstraint(Sketcher.Constraint("Vertical", 15, 2, 18, 2))
sketch5.addConstraint(Sketcher.Constraint("Equal", 3, 5))
sketch5.addConstraint(Sketcher.Constraint("Equal", 7, 9))
sketch5.addConstraint(Sketcher.Constraint("Equal", 11, 13))
sketch5.addConstraint(Sketcher.Constraint("Equal", 15, 17))
sketch5.addConstraint(Sketcher.Constraint("DistanceX", 0, 2, 0, 1, Q("150 mm")))
sketch5.addConstraint(Sketcher.Constraint("DistanceY", 1, 1, 1, 2, Q("3 mm")))
sketch5.addConstraint(Sketcher.Constraint("DistanceY", -1, 1, 16, 2, Q("10 mm")))
sketch5.addConstraint(Sketcher.Constraint("DistanceY", 4, 2, 0, 2, Q("23 mm")))
sketch5.addConstraint(Sketcher.Constraint("DistanceY", 8, 2, 4, 2, Q("23 mm")))
sketch5.addConstraint(Sketcher.Constraint("DistanceY", 12, 2, 8, 2, Q("23 mm")))
sketch5.addConstraint(Sketcher.Constraint("DistanceY", 16, 2, 12, 2, Q("23 mm")))
sketch5.addConstraint(Sketcher.Constraint("DistanceX", 0, 2, -1, 1, Q("203 mm")))
sketch5.setExpression("Constraints[102]", "Params.sketch5_width")
sketch5.setExpression("Constraints[103]", "Params.sketch5_height")
pocket3 = body.newObject("PartDesign::Pocket", "Pocket002")
pocket3.Profile = sketch5
pocket3.setExpression("Length", "Params.pocket3_length")
pocket3.Reversed = True

sketch6 = body.newObject("Sketcher::SketchObject", "Sketch005")
sketch6.AttachmentSupport = (doc.getObject("XZ_Plane"), [""])
sketch6.MapMode = "FlatFace"
sketch6.addGeometry(Part.LineSegment(Vector(-23, 28, 0), Vector(23, 28, 0)), False)
sketch6.addGeometry(Part.LineSegment(Vector(23, 28, 0), Vector(23, -28, 0)), False)
sketch6.addGeometry(Part.LineSegment(Vector(23, -28, 0), Vector(-23, -28, 0)), False)
sketch6.addGeometry(Part.LineSegment(Vector(-23, -28, 0), Vector(-23, 28, 0)), False)
sketch6.addGeometry(Part.LineSegment(Vector(-20, 25, 0), Vector(-20, -25, 0)), False)
sketch6.addGeometry(Part.LineSegment(Vector(-20, -25, 0), Vector(20, -25, 0)), False)
sketch6.addGeometry(Part.LineSegment(Vector(20, -25, 0), Vector(20, 25, 0)), False)
sketch6.addGeometry(Part.LineSegment(Vector(20, 25, 0), Vector(-20, 25, 0)), False)
sketch6.addConstraint(Sketcher.Constraint("Coincident", 0, 2, 1, 1))
sketch6.addConstraint(Sketcher.Constraint("Coincident", 1, 2, 2, 1))
sketch6.addConstraint(Sketcher.Constraint("Coincident", 2, 2, 3, 1))
sketch6.addConstraint(Sketcher.Constraint("Coincident", 3, 2, 0, 1))
sketch6.addConstraint(Sketcher.Constraint("Coincident", 4, 2, 5, 1))
sketch6.addConstraint(Sketcher.Constraint("Coincident", 5, 2, 6, 1))
sketch6.addConstraint(Sketcher.Constraint("Coincident", 6, 2, 7, 1))
sketch6.addConstraint(Sketcher.Constraint("Coincident", 7, 2, 4, 1))
sketch6.addConstraint(Sketcher.Constraint("Horizontal", 0))
sketch6.addConstraint(Sketcher.Constraint("Vertical", 1))
sketch6.addConstraint(Sketcher.Constraint("Horizontal", 2))
sketch6.addConstraint(Sketcher.Constraint("Vertical", 3))
sketch6.addConstraint(Sketcher.Constraint("Vertical", 4))
sketch6.addConstraint(Sketcher.Constraint("Horizontal", 5))
sketch6.addConstraint(Sketcher.Constraint("Vertical", 6))
sketch6.addConstraint(Sketcher.Constraint("Horizontal", 7))
sketch6.addConstraint(Sketcher.Constraint("Symmetric", 0, 2, 2, 2, -1, 1))
sketch6.addConstraint(Sketcher.Constraint("Symmetric", 4, 2, 6, 2, -1, 1))
sketch6.addConstraint(Sketcher.Constraint("DistanceX", 0, 1, 0, 2, Q("46 mm")))
sketch6.addConstraint(Sketcher.Constraint("DistanceX", 5, 1, 5, 2, Q("40 mm")))
sketch6.addConstraint(Sketcher.Constraint("DistanceY", 1, 2, 1, 1, Q("56 mm")))
sketch6.addConstraint(Sketcher.Constraint("DistanceY", 4, 2, 4, 1, Q("50 mm")))
sketch6.setExpression("Constraints[18]", "Params.sketch6_width")
sketch6.setExpression("Constraints[19]", "Params.sketch6_width2")
sketch6.setExpression("Constraints[20]", "Params.sketch6_height")
sketch6.setExpression("Constraints[21]", "Params.sketch6_height2")
pad3 = body.newObject("PartDesign::Pad", "Pad002")
pad3.Profile = sketch6
pad3.setExpression("Length", "Params.pad3_length")
pad3.Reversed = True

sketch7 = body.newObject("Sketcher::SketchObject", "Sketch006")
sketch7.AttachmentSupport = (doc.getObject("YZ_Plane"), [""])
sketch7.MapMode = "FlatFace"
sketch7.AttachmentOffset = App.Placement(Vector(0, 0, -23), App.Rotation())
sketch7.addGeometry(Part.Circle(Vector(20, 0, 0), Vector(0, 0, 1), 6), False)
sketch7.addConstraint(Sketcher.Constraint("PointOnObject", 0, 3, -1))
sketch7.addConstraint(Sketcher.Constraint("Diameter", 0, Q("13 mm")))
sketch7.addConstraint(Sketcher.Constraint("DistanceX", -1, 1, 0, 3, Q("20 mm")))
sketch7.setExpression("Constraints[1]", "Params.sketch7_diameter")
pocket4 = body.newObject("PartDesign::Pocket", "Pocket003")
pocket4.Profile = sketch7
pocket4.setExpression("Length", "Params.pocket4_length")
pocket4.Reversed = True

doc.recompute()
